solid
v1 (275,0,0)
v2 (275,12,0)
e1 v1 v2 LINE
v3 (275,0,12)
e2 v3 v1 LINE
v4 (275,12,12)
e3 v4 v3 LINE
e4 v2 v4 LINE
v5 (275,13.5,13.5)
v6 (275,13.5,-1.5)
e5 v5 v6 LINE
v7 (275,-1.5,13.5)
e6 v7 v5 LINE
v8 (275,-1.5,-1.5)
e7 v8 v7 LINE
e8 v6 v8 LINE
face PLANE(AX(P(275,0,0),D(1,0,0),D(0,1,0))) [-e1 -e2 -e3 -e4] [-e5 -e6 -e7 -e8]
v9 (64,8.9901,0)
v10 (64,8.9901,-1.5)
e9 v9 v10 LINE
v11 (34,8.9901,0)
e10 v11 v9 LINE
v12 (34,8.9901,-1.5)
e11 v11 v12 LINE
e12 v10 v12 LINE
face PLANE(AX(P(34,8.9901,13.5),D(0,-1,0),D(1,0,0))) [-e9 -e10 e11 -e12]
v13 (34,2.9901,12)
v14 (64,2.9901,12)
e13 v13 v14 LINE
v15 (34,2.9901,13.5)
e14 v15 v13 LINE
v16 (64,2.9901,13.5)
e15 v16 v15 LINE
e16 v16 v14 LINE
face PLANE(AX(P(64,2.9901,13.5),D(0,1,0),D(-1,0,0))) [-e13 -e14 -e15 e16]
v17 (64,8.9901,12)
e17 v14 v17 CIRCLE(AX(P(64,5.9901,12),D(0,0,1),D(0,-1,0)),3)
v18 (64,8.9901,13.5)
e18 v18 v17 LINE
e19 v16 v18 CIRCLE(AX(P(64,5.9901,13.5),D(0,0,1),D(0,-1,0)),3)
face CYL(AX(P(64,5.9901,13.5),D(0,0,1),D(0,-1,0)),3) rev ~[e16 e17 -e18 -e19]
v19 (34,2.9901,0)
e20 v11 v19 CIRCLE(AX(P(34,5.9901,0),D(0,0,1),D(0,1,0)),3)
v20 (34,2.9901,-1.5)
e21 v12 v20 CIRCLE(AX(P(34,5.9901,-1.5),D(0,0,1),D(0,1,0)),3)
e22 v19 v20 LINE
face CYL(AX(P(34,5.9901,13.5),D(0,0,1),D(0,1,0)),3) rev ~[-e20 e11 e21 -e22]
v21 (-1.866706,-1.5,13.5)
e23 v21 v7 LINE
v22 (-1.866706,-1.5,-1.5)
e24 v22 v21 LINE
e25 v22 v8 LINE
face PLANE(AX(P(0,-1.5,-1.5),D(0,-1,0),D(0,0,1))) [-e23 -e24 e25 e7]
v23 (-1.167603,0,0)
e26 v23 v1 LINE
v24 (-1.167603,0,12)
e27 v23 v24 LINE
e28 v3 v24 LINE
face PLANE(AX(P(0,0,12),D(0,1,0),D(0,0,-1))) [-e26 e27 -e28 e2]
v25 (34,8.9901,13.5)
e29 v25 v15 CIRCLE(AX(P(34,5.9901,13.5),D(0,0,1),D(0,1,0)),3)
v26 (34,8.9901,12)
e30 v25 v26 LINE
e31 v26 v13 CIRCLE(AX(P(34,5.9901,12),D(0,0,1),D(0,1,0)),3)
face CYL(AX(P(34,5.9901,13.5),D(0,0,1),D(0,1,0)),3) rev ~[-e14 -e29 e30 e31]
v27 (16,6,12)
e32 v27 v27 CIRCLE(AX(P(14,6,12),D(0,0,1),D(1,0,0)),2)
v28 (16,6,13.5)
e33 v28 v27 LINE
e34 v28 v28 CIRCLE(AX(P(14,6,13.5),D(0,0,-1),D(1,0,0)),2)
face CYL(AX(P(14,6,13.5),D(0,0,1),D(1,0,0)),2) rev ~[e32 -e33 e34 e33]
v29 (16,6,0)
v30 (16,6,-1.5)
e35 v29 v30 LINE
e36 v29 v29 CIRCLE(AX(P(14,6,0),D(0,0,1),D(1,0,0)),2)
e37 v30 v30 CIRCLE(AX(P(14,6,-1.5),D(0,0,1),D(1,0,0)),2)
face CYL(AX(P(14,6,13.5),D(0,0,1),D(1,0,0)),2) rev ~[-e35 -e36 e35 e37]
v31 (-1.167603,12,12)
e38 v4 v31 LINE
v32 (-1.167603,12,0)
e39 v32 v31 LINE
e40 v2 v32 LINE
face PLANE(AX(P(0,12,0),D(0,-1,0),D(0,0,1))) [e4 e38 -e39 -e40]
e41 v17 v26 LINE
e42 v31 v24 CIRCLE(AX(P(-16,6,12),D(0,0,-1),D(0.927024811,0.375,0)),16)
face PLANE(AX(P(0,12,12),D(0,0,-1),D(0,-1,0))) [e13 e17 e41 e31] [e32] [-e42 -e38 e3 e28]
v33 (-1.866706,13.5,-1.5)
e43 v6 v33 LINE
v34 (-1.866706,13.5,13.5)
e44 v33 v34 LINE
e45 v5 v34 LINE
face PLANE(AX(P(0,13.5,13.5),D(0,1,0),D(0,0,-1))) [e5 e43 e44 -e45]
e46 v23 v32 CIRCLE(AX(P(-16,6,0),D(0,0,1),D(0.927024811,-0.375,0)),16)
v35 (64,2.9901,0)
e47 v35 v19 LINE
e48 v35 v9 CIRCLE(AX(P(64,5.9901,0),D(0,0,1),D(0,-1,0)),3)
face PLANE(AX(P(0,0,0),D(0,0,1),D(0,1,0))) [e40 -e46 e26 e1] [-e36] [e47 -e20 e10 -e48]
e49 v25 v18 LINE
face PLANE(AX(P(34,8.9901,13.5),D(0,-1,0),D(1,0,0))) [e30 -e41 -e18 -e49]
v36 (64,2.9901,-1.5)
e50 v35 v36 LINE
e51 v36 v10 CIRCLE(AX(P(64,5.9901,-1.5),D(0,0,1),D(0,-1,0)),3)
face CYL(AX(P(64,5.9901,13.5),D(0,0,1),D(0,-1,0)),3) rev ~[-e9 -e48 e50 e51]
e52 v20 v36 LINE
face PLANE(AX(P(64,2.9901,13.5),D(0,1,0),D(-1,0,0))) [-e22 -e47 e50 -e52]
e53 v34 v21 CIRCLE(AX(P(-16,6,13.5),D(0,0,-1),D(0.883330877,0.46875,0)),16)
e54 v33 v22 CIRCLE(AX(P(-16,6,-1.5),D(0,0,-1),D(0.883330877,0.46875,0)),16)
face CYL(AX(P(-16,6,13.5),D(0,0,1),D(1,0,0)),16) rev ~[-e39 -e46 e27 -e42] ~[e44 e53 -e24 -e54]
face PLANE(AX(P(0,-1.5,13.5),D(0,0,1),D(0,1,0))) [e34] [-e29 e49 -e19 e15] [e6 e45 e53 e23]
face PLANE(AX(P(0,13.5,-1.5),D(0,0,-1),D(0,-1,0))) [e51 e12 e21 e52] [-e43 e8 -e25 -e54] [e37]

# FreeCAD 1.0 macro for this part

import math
import FreeCAD as App
import Part
import Sketcher
from FreeCAD import Vector


def add_polygon(sketch, points):
    """Adds a closed chain of lines whose ends are joined by coincident constraints."""
    first, n = sketch.GeometryCount, len(points)
    for a, b in zip(points, points[1:] + points[:1]):
        sketch.addGeometry(Part.LineSegment(App.Vector(*a, 0), App.Vector(*b, 0)), False)
    for i in range(n):
        sketch.addConstraint(Sketcher.Constraint("Coincident", first + i, 2, first + (i + 1) % n, 1))

doc = App.newDocument("Part")
params = doc.addObject("Spreadsheet::Sheet", "Params")
for row, (alias, value) in enumerate([
    ("sketch1_width", "12 mm"),
    ("pad1_length", "275 mm"),
    ("pad1_length2", "15 mm"),
    ("sketch2_width", "15 mm"),
    ("sketch2_width2", "12 mm"),
    ("pad2_length", "10 mm"),
    ("sketch3_diameter", "32 mm"),
    ("sketch4_radius", "3 mm"),
    ("sketch4_width", "30 mm"),
    ("sketch5_diameter", "4 mm"),
], start=1):
    params.set(f"A{row}", alias)
    params.set(f"B{row}", "=" + value)
    params.setAlias(f"B{row}", alias)

body = doc.addObject("PartDesign::Body", "Body")

# Sketch on YZ plane
sketch1 = body.newObject("Sketcher::SketchObject", "Sketch")
sketch1.AttachmentSupport = (doc.getObject("YZ_Plane"), [""])
sketch1.MapMode = "FlatFace"
add_polygon(sketch1, [(14, 14), (-2, 14), (-2, -2), (14, -2)])  # lines 0-3
add_polygon(sketch1, [(12, 0), (0, 0), (0, 12), (12, 12)])  # lines 4-7
sketch1.addConstraint([
    Sketcher.Constraint("Horizontal", 0),
    Sketcher.Constraint("Vertical", 1),
    Sketcher.Constraint("Horizontal", 2),
    Sketcher.Constraint("Vertical", 3),
    Sketcher.Constraint("Horizontal", 4),
    Sketcher.Constraint("Vertical", 5),
    Sketcher.Constraint("Horizontal", 6),
    Sketcher.Constraint("Vertical", 7),
    Sketcher.Constraint("Coincident", 4, 2, -1, 1),
    Sketcher.Constraint("Equal", 2, 1),
    Sketcher.Constraint("Equal", 6, 5),
    Sketcher.Constraint("DistanceX", 4, 2, 4, 1, 12.0),
    Sketcher.Constraint("DistanceX", 0, 2, -1, 1, 1.5),
    Sketcher.Constraint("DistanceY", 1, 2, -1, 1, 1.5),
    Sketcher.Constraint("DistanceY", 5, 2, 0, 2, 1.5),
])
sketch1.setExpression("Constraints[19]", "Params.sketch1_width")
pad1 = body.newObject("PartDesign::Pad", "Pad")
pad1.Profile = sketch1
pad1.Type = "TwoLengths"
pad1.setExpression("Length", "Params.pad1_length")
pad1.setExpression("Length2", "Params.pad1_length2")

# Sketch on YZ plane
sketch2 = body.newObject("Sketcher::SketchObject", "Sketch001")
sketch2.AttachmentSupport = (doc.getObject("YZ_Plane"), [""])
sketch2.MapMode = "FlatFace"
add_polygon(sketch2, [(14, -2), (-2, -2), (-2, 14), (14, 14)])  # lines 0-3
add_polygon(sketch2, [(0, 12), (0, 0), (12, 0), (12, 12)])  # lines 4-7
sketch2.addConstraint([
    Sketcher.Constraint("Horizontal", 0),
    Sketcher.Constraint("Vertical", 1),
    Sketcher.Constraint("Horizontal", 2),
    Sketcher.Constraint("Vertical", 3),
    Sketcher.Constraint("Vertical", 4),
    Sketcher.Constraint("Horizontal", 5),
    Sketcher.Constraint("Vertical", 6),
    Sketcher.Constraint("Horizontal", 7),
    Sketcher.Constraint("Coincident", 4, 2, -1, 1),
    Sketcher.Constraint("Equal", 2, 1),
    Sketcher.Constraint("Equal", 7, 4),
    Sketcher.Constraint("DistanceX", 0, 2, 0, 1, 15.0),
    Sketcher.Constraint("DistanceX", 5, 1, 5, 2, 12.0),
    Sketcher.Constraint("DistanceX", 0, 2, -1, 1, 1.5),
    Sketcher.Constraint("DistanceY", 0, 2, -1, 1, 1.5),
])
sketch2.setExpression("Constraints[19]", "Params.sketch2_width")
sketch2.setExpression("Constraints[20]", "Params.sketch2_width2")
pad2 = body.newObject("PartDesign::Pad", "Pad001")
pad2.Profile = sketch2
pad2.setExpression("Length", "Params.pad2_length")
pad2.Reversed = True

# Sketch on XY plane
sketch3 = body.newObject("Sketcher::SketchObject", "Sketch002")
sketch3.AttachmentSupport = (doc.getObject("XY_Plane"), [""])
sketch3.MapMode = "FlatFace"
sketch3.AttachmentOffset = App.Placement(Vector(0, 0, 13.5), App.Rotation())
sketch3.addGeometry(Part.Circle(Vector(-16, 6, 0), Vector(0, 0, 1), 16), False)
sketch3.addConstraint([
    Sketcher.Constraint("Diameter", 0, 32.0),
    Sketcher.Constraint("DistanceX", 0, 3, -1, 1, 16.0),
    Sketcher.Constraint("DistanceY", -1, 1, 0, 3, 6.0),
])
sketch3.setExpression("Constraints[0]", "Params.sketch3_diameter")
pocket1 = body.newObject("PartDesign::Pocket", "Pocket")
pocket1.Profile = sketch3
pocket1.Type = "ThroughAll"

# Sketch on XY plane
sketch4 = body.newObject("Sketcher::SketchObject", "Sketch003")
sketch4.AttachmentSupport = (doc.getObject("XY_Plane"), [""])
sketch4.MapMode = "FlatFace"
sketch4.AttachmentOffset = App.Placement(Vector(0, 0, 13.5), App.Rotation())
sketch4.addGeometry([
    Part.LineSegment(Vector(64, 9, 0), Vector(34, 9, 0)),
    Part.ArcOfCircle(Part.Circle(Vector(34, 6, 0), Vector(0, 0, 1), 3), math.radians(90), math.radians(270)),
    Part.LineSegment(Vector(34, 3, 0), Vector(64, 3, 0)),
    Part.ArcOfCircle(Part.Circle(Vector(64, 6, 0), Vector(0, 0, 1), 3), math.radians(-90), math.radians(90)),
], False)
sketch4.addConstraint([
    Sketcher.Constraint("Tangent", 0, 2, 1, 1),
    Sketcher.Constraint("Tangent", 1, 2, 2, 1),
    Sketcher.Constraint("Tangent", 2, 2, 3, 1),
    Sketcher.Constraint("Tangent", 3, 2, 0, 1),
    Sketcher.Constraint("Horizontal", 0),
    Sketcher.Constraint("Horizontal", 2),
    Sketcher.Constraint("Radius", 1, 3.0),
    Sketcher.Constraint("DistanceX", 0, 2, 0, 1, 30.0),
    Sketcher.Constraint("DistanceX", -1, 1, 1, 3, 34.0),
    Sketcher.Constraint("DistanceY", -1, 1, 1, 3, 5.99),
])
sketch4.setExpression("Constraints[6]", "Params.sketch4_radius")
sketch4.setExpression("Constraints[7]", "Params.sketch4_width")
pocket2 = body.newObject("PartDesign::Pocket", "Pocket001")
pocket2.Profile = sketch4
pocket2.Type = "ThroughAll"

# Sketch on XY plane
sketch5 = body.newObject("Sketcher::SketchObject", "Sketch004")
sketch5.AttachmentSupport = (doc.getObject("XY_Plane"), [""])
sketch5.MapMode = "FlatFace"
sketch5.AttachmentOffset = App.Placement(Vector(0, 0, 13.5), App.Rotation())
sketch5.addGeometry(Part.Circle(Vector(14, 6, 0), Vector(0, 0, 1), 2), False)
sketch5.addConstraint([
    Sketcher.Constraint("Diameter", 0, 4.0),
    Sketcher.Constraint("DistanceX", -1, 1, 0, 3, 14.0),
    Sketcher.Constraint("DistanceY", -1, 1, 0, 3, 6.0),
])
sketch5.setExpression("Constraints[0]", "Params.sketch5_diameter")
pocket3 = body.newObject("PartDesign::Pocket", "Pocket002")
pocket3.Profile = sketch5
pocket3.Type = "ThroughAll"

doc.recompute()
